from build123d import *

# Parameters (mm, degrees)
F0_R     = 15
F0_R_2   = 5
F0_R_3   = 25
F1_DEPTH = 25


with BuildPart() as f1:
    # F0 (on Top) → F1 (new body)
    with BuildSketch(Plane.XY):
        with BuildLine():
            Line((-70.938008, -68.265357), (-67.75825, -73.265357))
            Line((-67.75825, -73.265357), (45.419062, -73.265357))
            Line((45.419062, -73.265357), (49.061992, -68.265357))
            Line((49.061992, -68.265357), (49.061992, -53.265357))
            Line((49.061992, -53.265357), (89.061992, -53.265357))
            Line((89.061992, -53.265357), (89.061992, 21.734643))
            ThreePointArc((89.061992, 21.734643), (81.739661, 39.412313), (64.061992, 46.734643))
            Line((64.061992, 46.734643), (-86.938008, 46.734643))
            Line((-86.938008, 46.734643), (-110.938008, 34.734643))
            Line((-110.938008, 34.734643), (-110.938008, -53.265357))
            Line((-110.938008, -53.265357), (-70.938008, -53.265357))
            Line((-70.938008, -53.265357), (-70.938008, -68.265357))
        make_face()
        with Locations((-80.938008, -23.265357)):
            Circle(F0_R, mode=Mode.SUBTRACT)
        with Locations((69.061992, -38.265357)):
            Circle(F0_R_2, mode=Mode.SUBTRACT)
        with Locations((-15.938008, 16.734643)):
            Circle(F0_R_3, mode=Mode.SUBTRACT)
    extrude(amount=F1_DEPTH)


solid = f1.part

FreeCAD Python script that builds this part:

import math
import FreeCAD as App
import Part
import Sketcher
from FreeCAD import Vector
Q = App.Units.Quantity

doc = App.newDocument("Part")
body = doc.addObject("PartDesign::Body", "Body")

# Sketch on XY plane
sketch1 = doc.addObject("Sketcher::SketchObject", "Sketch")
body.addObject(sketch1)
sketch1.AttachmentSupport = (doc.XY_Plane, [""])
sketch1.MapMode = "FlatFace"
sketch1.addGeometry([
    Part.LineSegment(Vector(-70.938008, -68.265357, 0), Vector(-67.75825, -73.265357, 0)),  # 0
    Part.LineSegment(Vector(-67.75825, -73.265357, 0), Vector(45.419062, -73.265357, 0)),  # 1
    Part.LineSegment(Vector(45.419062, -73.265357, 0), Vector(49.061992, -68.265357, 0)),  # 2
    Part.LineSegment(Vector(49.061992, -68.265357, 0), Vector(49.061992, -53.265357, 0)),  # 3
    Part.LineSegment(Vector(49.061992, -53.265357, 0), Vector(89.061992, -53.265357, 0)),  # 4
    Part.LineSegment(Vector(89.061992, -53.265357, 0), Vector(89.061992, 21.734643, 0)),  # 5
    Part.ArcOfCircle(Part.Circle(Vector(64.061992, 21.734643, 0), Vector(0, 0, 1), 25), math.radians(0), math.radians(90)),  # 6
    Part.LineSegment(Vector(64.061992, 46.734643, 0), Vector(-86.938008, 46.734643, 0)),  # 7
    Part.LineSegment(Vector(-86.938008, 46.734643, 0), Vector(-110.938008, 34.734643, 0)),  # 8
    Part.LineSegment(Vector(-110.938008, 34.734643, 0), Vector(-110.938008, -53.265357, 0)),  # 9
    Part.LineSegment(Vector(-110.938008, -53.265357, 0), Vector(-70.938008, -53.265357, 0)),  # 10
    Part.LineSegment(Vector(-70.938008, -53.265357, 0), Vector(-70.938008, -68.265357, 0)),  # 11
    Part.Circle(Vector(-80.938008, -23.265357, 0), Vector(0, 0, 1), 15),  # 12
    Part.Circle(Vector(69.061992, -38.265357, 0), Vector(0, 0, 1), 5),  # 13
    Part.Circle(Vector(-15.938008, 16.734643, 0), Vector(0, 0, 1), 25),  # 14
], False)
sketch1.addConstraint([
    Sketcher.Constraint("Coincident", 0, 2, 1, 1),
    Sketcher.Constraint("Coincident", 1, 2, 2, 1),
    Sketcher.Constraint("Coincident", 2, 2, 3, 1),
    Sketcher.Constraint("Coincident", 3, 2, 4, 1),
    Sketcher.Constraint("Coincident", 4, 2, 5, 1),
    Sketcher.Constraint("Tangent", 5, 2, 6, 1),
    Sketcher.Constraint("Tangent", 6, 2, 7, 1),
    Sketcher.Constraint("Coincident", 7, 2, 8, 1),
    Sketcher.Constraint("Coincident", 8, 2, 9, 1),
    Sketcher.Constraint("Coincident", 9, 2, 10, 1),
    Sketcher.Constraint("Coincident", 10, 2, 11, 1),
    Sketcher.Constraint("Coincident", 11, 2, 0, 1),
    Sketcher.Constraint("Horizontal", 1),
    Sketcher.Constraint("Vertical", 3),
    Sketcher.Constraint("Horizontal", 4),
    Sketcher.Constraint("Vertical", 5),
    Sketcher.Constraint("Horizontal", 7),
    Sketcher.Constraint("Vertical", 9),
    Sketcher.Constraint("Horizontal", 10),
    Sketcher.Constraint("Vertical", 11),
    Sketcher.Constraint("Equal", 6, 14),
    Sketcher.Constraint("Horizontal", 4, 2, 9, 2),
    Sketcher.Constraint("Horizontal", 2, 2, 11, 2),
    Sketcher.Constraint("Equal", 4, 10),
    Sketcher.Constraint("Diameter", 12, Q("30 mm")),
    Sketcher.Constraint("Diameter", 13, Q("10 mm")),
    Sketcher.Constraint("Diameter", 14, Q("50 mm")),
    Sketcher.Constraint("DistanceX", 4, 1, 4, 2, Q("40 mm")),
    Sketcher.Constraint("DistanceX", 7, 2, 7, 1, Q("151 mm")),
    Sketcher.Constraint("DistanceY", 3, 1, 3, 2, Q("15 mm")),
    Sketcher.Constraint("DistanceY", 5, 1, 5, 2, Q("75 mm")),
    Sketcher.Constraint("DistanceY", 9, 2, 9, 1, Q("88 mm")),
    Sketcher.Constraint("DistanceX", 12, 3, 6, 3, Q("145 mm")),
    Sketcher.Constraint("DistanceY", 12, 3, 6, 3, Q("45 mm")),
    Sketcher.Constraint("DistanceX", 6, 3, 13, 3, Q("5 mm")),
    Sketcher.Constraint("DistanceY", 13, 3, 6, 3, Q("60 mm")),
    Sketcher.Constraint("DistanceX", 12, 3, 14, 3, Q("65 mm")),
    Sketcher.Constraint("DistanceY", 12, 3, 14, 3, Q("40 mm")),
    Sketcher.Constraint("DistanceY", 0, 2, 12, 3, Q("50 mm")),
    Sketcher.Constraint("DistanceX", 8, 2, 7, 2, Q("24 mm")),
    Sketcher.Constraint("DistanceX", 1, 1, 1, 2, Q("113.177312 mm")),
    Sketcher.Constraint("Distance", 0, Q("5.925442 mm")),
    Sketcher.Constraint("DistanceX", -1, 1, 6, 3, Q("64.061992 mm")),
    Sketcher.Constraint("DistanceY", -1, 1, 6, 3, Q("21.734643 mm")),
])
pad1 = doc.addObject("PartDesign::Pad", "Pad")
body.addObject(pad1)
pad1.Profile = sketch1
pad1.Length = 25

doc.recompute()
